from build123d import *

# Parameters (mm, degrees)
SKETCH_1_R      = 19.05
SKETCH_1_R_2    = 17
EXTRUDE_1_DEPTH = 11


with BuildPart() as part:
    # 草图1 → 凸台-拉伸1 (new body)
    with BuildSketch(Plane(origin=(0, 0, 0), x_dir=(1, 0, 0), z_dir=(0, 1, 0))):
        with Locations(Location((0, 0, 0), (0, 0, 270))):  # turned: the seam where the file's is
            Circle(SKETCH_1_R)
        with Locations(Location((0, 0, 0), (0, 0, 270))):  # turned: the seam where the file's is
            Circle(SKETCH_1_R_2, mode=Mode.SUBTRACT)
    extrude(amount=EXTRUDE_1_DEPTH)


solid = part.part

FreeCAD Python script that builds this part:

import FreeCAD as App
import Part
import Sketcher

V = App.Vector
Q = App.Units.Quantity

doc = App.newDocument("Part")
body = doc.addObject("PartDesign::Body", "Body")

# Sketch on XZ plane
sketch1 = body.newObject("Sketcher::SketchObject", "Sketch")
sketch1.AttachmentSupport = (doc.getObject("XZ_Plane"), [""])
sketch1.MapMode = "FlatFace"
sketch1.addGeometry([
    Part.Circle(V(0, 0, 0), V(0, 0, 1), 19),
    Part.Circle(V(0, 0, 0), V(0, 0, 1), 17),
], False)
sketch1.addConstraint([
    Sketcher.Constraint("Coincident", 0, 3, -1, 1),
    Sketcher.Constraint("Coincident", 1, 3, -1, 1),
    Sketcher.Constraint("Diameter", 1, Q("34 mm")),
    Sketcher.Constraint("Diameter", 0, Q("38.1 mm")),
])
pad1 = body.newObject("PartDesign::Pad", "Pad")
pad1.Profile = sketch1
pad1.Length = 11
pad1.Reversed = True

doc.recompute()
